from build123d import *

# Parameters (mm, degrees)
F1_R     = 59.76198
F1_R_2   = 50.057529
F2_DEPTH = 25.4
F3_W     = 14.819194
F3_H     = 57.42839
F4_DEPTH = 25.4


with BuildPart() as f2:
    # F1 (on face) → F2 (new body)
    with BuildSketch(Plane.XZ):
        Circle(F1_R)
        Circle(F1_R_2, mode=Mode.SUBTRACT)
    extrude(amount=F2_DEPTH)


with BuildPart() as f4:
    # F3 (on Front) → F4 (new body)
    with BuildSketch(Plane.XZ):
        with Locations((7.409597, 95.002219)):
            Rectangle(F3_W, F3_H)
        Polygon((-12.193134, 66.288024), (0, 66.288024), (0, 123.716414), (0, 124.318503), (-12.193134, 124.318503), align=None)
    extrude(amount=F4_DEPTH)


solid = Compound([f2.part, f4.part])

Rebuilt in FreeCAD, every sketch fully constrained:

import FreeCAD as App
import Part
import Sketcher

V = App.Vector


def add_polygon(sketch, points):
    """Adds a closed chain of lines whose ends are joined by coincident constraints."""
    first, n = sketch.GeometryCount, len(points)
    for a, b in zip(points, points[1:] + points[:1]):
        sketch.addGeometry(Part.LineSegment(App.Vector(*a, 0), App.Vector(*b, 0)), False)
    for i in range(n):
        sketch.addConstraint(Sketcher.Constraint("Coincident", first + i, 2, first + (i + 1) % n, 1))

doc = App.newDocument("Part")
params = doc.addObject("Spreadsheet::Sheet", "Params")
for row, (alias, value) in enumerate([
    ("pad1_length", "1 in"),
    ("pad2_length", "1 in"),
], start=1):
    params.set(f"A{row}", alias)
    params.set(f"B{row}", "=" + value)
    params.setAlias(f"B{row}", alias)

body = doc.addObject("PartDesign::Body", "Body")

# Sketch on XZ plane
sketch1 = doc.addObject("Sketcher::SketchObject", "Sketch")
body.addObject(sketch1)
sketch1.AttachmentSupport = (doc.XZ_Plane, [""])
sketch1.MapMode = "FlatFace"
sketch1.addGeometry([
    Part.Circle(V(0, 0, 0), V(0, 0, 1), 59.76198),
    Part.Circle(V(0, 0, 0), V(0, 0, 1), 50.057529),
], False)
sketch1.addConstraint([
    Sketcher.Constraint("Coincident", 0, 3, -1, 1),
    Sketcher.Constraint("Coincident", 1, 3, -1, 1),
    Sketcher.Constraint("Diameter", 0, 119.52396),
    Sketcher.Constraint("Diameter", 1, 100.115058),
])
pad1 = doc.addObject("PartDesign::Pad", "Pad")
body.addObject(pad1)
pad1.Profile = sketch1
pad1.setExpression("Length", "Params.pad1_length")
body2 = doc.addObject("PartDesign::Body", "Body001")

# Sketch on XZ plane
sketch2 = doc.addObject("Sketcher::SketchObject", "Sketch001")
body2.addObject(sketch2)
sketch2.AttachmentSupport = (doc.getObject("XZ_Plane001"), [""])
sketch2.MapMode = "FlatFace"
add_polygon(sketch2, [(14.819194, 66.288024), (14.819194, 123.716414), (0, 123.716414), (0, 124.318503), (-12.193134, 124.318503), (-12.193134, 66.288024)])  # lines 0-5
sketch2.addConstraint([
    Sketcher.Constraint("Vertical", 0),
    Sketcher.Constraint("Horizontal", 1),
    Sketcher.Constraint("Vertical", 2),
    Sketcher.Constraint("Horizontal", 3),
    Sketcher.Constraint("Vertical", 4),
    Sketcher.Constraint("Horizontal", 5),
    Sketcher.Constraint("PointOnObject", 1, 2, -2),
    Sketcher.Constraint("DistanceX", 5, 1, 5, 2, 27.012328),
    Sketcher.Constraint("DistanceY", 0, 1, 0, 2, 57.42839),
    Sketcher.Constraint("DistanceY", 2, 1, 2, 2, 0.602089),
    Sketcher.Constraint("DistanceX", 1, 2, 1, 1, 14.819194),
    Sketcher.Constraint("DistanceY", -1, 1, 0, 2, 123.716414),
])
pad2 = doc.addObject("PartDesign::Pad", "Pad001")
body2.addObject(pad2)
pad2.Profile = sketch2
pad2.setExpression("Length", "Params.pad2_length")

doc.recompute()
